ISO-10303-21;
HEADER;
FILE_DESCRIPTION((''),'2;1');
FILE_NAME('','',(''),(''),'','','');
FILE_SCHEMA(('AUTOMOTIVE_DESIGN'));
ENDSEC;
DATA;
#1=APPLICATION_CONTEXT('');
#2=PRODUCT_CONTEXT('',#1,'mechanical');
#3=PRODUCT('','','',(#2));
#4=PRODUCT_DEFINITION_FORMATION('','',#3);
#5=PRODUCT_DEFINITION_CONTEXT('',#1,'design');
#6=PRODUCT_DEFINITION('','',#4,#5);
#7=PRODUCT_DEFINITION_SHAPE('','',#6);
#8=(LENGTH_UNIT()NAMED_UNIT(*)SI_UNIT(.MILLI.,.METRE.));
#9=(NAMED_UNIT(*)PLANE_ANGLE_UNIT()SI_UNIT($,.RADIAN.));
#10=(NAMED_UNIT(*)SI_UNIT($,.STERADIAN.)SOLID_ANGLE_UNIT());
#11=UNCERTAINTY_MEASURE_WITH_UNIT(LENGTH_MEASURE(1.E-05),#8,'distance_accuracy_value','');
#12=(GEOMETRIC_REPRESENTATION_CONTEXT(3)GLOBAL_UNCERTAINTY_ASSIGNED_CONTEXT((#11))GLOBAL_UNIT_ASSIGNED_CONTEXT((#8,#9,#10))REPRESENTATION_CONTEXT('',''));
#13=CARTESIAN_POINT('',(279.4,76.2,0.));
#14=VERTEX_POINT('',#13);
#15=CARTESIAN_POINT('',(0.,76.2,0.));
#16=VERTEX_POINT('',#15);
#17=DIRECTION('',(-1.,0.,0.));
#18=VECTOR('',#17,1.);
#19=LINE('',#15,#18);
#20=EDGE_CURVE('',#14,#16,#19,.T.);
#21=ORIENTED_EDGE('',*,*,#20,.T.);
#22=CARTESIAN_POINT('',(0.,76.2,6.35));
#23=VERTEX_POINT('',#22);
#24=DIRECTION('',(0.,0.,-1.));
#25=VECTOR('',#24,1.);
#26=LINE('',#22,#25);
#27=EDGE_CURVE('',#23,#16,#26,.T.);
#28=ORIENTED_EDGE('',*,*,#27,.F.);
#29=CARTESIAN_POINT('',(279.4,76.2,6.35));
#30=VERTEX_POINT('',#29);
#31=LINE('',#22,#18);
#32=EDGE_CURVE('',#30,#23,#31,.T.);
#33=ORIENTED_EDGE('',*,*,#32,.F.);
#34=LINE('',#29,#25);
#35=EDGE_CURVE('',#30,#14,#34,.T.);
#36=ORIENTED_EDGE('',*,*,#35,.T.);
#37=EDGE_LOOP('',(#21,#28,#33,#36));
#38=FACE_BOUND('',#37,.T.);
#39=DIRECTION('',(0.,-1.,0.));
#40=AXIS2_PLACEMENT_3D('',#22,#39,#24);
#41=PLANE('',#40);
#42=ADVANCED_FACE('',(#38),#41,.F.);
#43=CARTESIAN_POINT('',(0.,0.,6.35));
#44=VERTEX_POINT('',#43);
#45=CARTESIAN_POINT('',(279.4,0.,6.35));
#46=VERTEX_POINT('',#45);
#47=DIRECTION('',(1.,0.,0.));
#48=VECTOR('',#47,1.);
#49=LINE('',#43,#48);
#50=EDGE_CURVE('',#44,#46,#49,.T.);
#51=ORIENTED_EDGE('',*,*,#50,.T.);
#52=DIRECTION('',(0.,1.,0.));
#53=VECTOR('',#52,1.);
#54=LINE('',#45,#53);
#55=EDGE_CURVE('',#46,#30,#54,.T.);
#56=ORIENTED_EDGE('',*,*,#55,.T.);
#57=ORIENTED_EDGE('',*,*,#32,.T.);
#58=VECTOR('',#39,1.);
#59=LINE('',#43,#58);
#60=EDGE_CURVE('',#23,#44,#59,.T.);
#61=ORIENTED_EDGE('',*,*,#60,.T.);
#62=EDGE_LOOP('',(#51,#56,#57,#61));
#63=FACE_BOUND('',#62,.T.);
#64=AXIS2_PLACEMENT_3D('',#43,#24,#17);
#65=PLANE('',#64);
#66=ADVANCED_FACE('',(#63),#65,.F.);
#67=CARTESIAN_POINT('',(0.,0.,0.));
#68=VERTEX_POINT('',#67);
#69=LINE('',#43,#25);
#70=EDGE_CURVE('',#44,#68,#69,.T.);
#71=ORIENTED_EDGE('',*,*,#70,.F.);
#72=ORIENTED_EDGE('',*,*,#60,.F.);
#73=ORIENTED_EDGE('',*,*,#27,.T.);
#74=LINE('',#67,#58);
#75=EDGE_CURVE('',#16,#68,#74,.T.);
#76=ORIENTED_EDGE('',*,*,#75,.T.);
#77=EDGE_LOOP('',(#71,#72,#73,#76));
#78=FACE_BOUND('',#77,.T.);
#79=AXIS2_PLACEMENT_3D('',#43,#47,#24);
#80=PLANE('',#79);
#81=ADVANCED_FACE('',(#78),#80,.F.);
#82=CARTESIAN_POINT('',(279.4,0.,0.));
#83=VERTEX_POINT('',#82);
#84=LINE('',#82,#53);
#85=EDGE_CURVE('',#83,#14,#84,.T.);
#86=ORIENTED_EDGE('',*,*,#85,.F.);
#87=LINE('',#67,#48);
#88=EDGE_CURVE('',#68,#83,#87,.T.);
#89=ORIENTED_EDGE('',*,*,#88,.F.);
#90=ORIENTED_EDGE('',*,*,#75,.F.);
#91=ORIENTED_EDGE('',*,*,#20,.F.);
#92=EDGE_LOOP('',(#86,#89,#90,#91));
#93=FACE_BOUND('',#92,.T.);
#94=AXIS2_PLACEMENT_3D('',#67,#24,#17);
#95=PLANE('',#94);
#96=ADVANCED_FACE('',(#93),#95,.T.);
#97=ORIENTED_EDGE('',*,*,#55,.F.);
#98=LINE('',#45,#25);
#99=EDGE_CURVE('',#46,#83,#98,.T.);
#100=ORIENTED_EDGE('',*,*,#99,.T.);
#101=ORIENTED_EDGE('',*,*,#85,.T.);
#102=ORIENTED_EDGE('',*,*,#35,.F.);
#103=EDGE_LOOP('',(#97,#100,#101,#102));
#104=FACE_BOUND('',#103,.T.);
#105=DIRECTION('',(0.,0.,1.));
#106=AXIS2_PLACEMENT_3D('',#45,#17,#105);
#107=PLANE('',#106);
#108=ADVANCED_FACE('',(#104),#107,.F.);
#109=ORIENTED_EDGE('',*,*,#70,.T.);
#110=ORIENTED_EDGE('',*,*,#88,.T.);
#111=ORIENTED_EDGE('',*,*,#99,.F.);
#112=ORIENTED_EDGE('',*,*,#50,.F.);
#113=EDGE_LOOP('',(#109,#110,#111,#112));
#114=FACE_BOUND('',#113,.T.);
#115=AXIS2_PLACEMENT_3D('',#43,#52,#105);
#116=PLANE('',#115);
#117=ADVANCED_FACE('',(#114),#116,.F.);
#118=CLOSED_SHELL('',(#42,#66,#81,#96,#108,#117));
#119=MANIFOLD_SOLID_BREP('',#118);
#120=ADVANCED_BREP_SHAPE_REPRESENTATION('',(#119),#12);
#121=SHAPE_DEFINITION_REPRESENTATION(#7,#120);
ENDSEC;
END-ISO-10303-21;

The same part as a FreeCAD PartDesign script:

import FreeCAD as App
import Part
import Sketcher
from FreeCAD import Vector
Q = App.Units.Quantity

doc = App.newDocument("Part")
params = doc.addObject("Spreadsheet::Sheet", "Params")
for row, (alias, value) in enumerate([
    ("sketch1_width", "11 in"),
    ("sketch1_height", "3 in"),
    ("pad1_length", "0.25 in"),
], start=1):
    params.set(f"A{row}", alias)
    params.set(f"B{row}", "=" + value)
    params.setAlias(f"B{row}", alias)

body = doc.addObject("PartDesign::Body", "Body")

# Sketch on XY plane
sketch1 = body.newObject("Sketcher::SketchObject", "Sketch")
sketch1.AttachmentSupport = (doc.getObject("XY_Plane"), [""])
sketch1.MapMode = "FlatFace"
sketch1.addGeometry([
    Part.LineSegment(Vector(0, 76.2, 0), Vector(0, 0, 0)),
    Part.LineSegment(Vector(0, 0, 0), Vector(279.4, 0, 0)),
    Part.LineSegment(Vector(279.4, 0, 0), Vector(279.4, 76.2, 0)),
    Part.LineSegment(Vector(279.4, 76.2, 0), Vector(0, 76.2, 0)),
], False)
sketch1.addConstraint([
    Sketcher.Constraint("Coincident", 0, 2, 1, 1),
    Sketcher.Constraint("Coincident", 1, 2, 2, 1),
    Sketcher.Constraint("Coincident", 2, 2, 3, 1),
    Sketcher.Constraint("Coincident", 3, 2, 0, 1),
    Sketcher.Constraint("Vertical", 0),
    Sketcher.Constraint("Horizontal", 1),
    Sketcher.Constraint("Vertical", 2),
    Sketcher.Constraint("Horizontal", 3),
    Sketcher.Constraint("Coincident", 0, 2, -1, 1),
    Sketcher.Constraint("DistanceX", 1, 1, 1, 2, Q("11 in")),
    Sketcher.Constraint("DistanceY", 0, 2, 0, 1, Q("3 in")),
])
sketch1.setExpression("Constraints[9]", "Params.sketch1_width")
sketch1.setExpression("Constraints[10]", "Params.sketch1_height")
pad1 = body.newObject("PartDesign::Pad", "Pad")
pad1.Profile = sketch1
pad1.setExpression("Length", "Params.pad1_length")

doc.recompute()
